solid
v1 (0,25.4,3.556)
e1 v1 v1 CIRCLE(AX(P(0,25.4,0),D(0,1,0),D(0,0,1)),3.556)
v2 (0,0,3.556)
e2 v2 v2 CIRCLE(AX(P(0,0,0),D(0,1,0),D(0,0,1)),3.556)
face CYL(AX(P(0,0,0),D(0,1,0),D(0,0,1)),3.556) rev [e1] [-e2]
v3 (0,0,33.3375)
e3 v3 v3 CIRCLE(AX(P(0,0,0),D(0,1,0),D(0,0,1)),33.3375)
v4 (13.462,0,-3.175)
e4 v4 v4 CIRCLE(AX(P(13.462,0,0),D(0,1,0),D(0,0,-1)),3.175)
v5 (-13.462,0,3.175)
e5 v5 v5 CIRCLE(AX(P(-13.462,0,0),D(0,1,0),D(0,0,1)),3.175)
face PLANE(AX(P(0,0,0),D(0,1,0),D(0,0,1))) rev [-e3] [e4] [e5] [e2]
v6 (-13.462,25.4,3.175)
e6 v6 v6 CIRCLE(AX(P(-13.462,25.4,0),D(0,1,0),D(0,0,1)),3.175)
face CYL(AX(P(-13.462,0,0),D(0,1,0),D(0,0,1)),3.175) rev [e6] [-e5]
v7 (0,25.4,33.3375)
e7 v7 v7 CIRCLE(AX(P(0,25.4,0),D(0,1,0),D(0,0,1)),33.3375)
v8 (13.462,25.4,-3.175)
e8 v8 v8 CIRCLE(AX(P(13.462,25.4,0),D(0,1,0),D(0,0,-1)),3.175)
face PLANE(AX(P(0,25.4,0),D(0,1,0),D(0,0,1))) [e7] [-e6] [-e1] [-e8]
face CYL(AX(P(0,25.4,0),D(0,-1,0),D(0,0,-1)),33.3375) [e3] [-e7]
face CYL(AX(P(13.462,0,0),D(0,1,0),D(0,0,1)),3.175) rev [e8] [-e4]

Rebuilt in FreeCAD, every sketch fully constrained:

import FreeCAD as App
import Part
import Sketcher
from FreeCAD import Vector
Q = App.Units.Quantity

doc = App.newDocument("Part")
body = doc.addObject("PartDesign::Body", "Body")

# Sketch on XZ plane
sketch1 = body.newObject("Sketcher::SketchObject", "Sketch")
sketch1.AttachmentSupport = (doc.getObject("XZ_Plane"), [""])
sketch1.MapMode = "FlatFace"
sketch1.addGeometry(Part.Circle(Vector(0, 0, 0), Vector(0, 0, 1), 33), False)
sketch1.addConstraint([
    Sketcher.Constraint("Coincident", 0, 3, -1, 1),
    Sketcher.Constraint("Diameter", 0, Q("2.625 in")),
])
pad1 = body.newObject("PartDesign::Pad", "Pad")
pad1.Profile = sketch1
pad1.Length = Q("1 in")
pad1.Reversed = True

# Sketch on XZ plane
sketch2 = body.newObject("Sketcher::SketchObject", "Sketch001")
sketch2.AttachmentSupport = (doc.getObject("XZ_Plane"), [""])
sketch2.MapMode = "FlatFace"
sketch2.AttachmentOffset = App.Placement(Vector(0, 0, -1 * 25.4), App.Rotation())
sketch2.addGeometry(Part.Circle(Vector(0, 0, 0), Vector(0, 0, 1), 3.6), False)
sketch2.addConstraint([
    Sketcher.Constraint("Coincident", 0, 3, -1, 1),
    Sketcher.Constraint("Diameter", 0, Q("0.28 in")),
])
pocket1 = body.newObject("PartDesign::Pocket", "Pocket")
pocket1.Profile = sketch2
pocket1.Type = "ThroughAll"
pocket1.Reversed = True

# Sketch on XZ plane
sketch3 = body.newObject("Sketcher::SketchObject", "Sketch002")
sketch3.AttachmentSupport = (doc.getObject("XZ_Plane"), [""])
sketch3.MapMode = "FlatFace"
sketch3.AttachmentOffset = App.Placement(Vector(0, 0, -1 * 25.4), App.Rotation())
sketch3.addGeometry([
    Part.Circle(Vector(-13.5, 0, 0), Vector(0, 0, 1), 3.2),
    Part.Circle(Vector(13.5, 0, 0), Vector(0, 0, 1), 3.2),
], False)
sketch3.addConstraint([
    Sketcher.Constraint("Equal", 0, 1),
    Sketcher.Constraint("Symmetric", 0, 3, 1, 3, -1, 1),
    Sketcher.Constraint("PointOnObject", 0, 3, -1),
    Sketcher.Constraint("Diameter", 0, Q("0.25 in")),
    Sketcher.Constraint("DistanceX", 0, 3, -1, 1, Q("0.53 in")),
])
pocket2 = body.newObject("PartDesign::Pocket", "Pocket001")
pocket2.Profile = sketch3
pocket2.Type = "ThroughAll"
pocket2.Reversed = True

doc.recompute()
